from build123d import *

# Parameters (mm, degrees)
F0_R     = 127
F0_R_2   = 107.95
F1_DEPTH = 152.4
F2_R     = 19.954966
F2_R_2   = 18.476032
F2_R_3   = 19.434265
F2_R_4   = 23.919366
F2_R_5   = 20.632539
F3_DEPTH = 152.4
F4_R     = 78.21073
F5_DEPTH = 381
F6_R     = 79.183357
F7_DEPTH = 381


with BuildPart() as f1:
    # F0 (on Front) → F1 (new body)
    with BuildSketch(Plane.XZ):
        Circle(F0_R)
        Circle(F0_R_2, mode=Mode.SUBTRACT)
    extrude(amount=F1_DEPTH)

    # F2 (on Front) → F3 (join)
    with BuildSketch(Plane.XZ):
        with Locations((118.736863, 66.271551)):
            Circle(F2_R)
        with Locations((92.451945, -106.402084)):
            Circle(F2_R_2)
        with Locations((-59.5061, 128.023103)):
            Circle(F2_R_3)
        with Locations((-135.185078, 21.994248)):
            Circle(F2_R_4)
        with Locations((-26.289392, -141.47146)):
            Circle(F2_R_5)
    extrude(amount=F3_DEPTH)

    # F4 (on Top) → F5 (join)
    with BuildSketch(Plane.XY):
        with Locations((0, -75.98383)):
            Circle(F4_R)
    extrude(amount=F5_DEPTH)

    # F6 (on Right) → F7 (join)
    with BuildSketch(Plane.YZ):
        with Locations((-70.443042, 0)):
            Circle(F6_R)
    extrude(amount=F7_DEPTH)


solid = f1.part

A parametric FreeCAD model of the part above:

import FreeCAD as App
import Part
import Sketcher

V = App.Vector
Q = App.Units.Quantity

doc = App.newDocument("Part")
body = doc.addObject("PartDesign::Body", "Body")

sketch1 = doc.addObject("Sketcher::SketchObject", "Sketch")
body.addObject(sketch1)
sketch1.AttachmentSupport = (doc.XZ_Plane, [""])
sketch1.MapMode = "FlatFace"
sketch1.addGeometry(Part.Circle(V(0, 0, 0), V(0, 0, 1), 127), False)
sketch1.addGeometry(Part.Circle(V(0, 0, 0), V(0, 0, 1), 107.95), False)
sketch1.addConstraint(Sketcher.Constraint("Coincident", 0, 3, -1, 1))
sketch1.addConstraint(Sketcher.Constraint("Coincident", 1, 3, -1, 1))
sketch1.addConstraint(Sketcher.Constraint("Diameter", 0, Q("10 in")))
sketch1.addConstraint(Sketcher.Constraint("Diameter", 1, Q("8.5 in")))
pad1 = doc.addObject("PartDesign::Pad", "Pad")
body.addObject(pad1)
pad1.Profile = sketch1
pad1.Length = Q("6 in")

sketch2 = doc.addObject("Sketcher::SketchObject", "Sketch001")
body.addObject(sketch2)
sketch2.AttachmentSupport = (doc.XZ_Plane, [""])
sketch2.MapMode = "FlatFace"
sketch2.addGeometry(Part.Circle(V(118.736863, 66.271551, 0), V(0, 0, 1), 19.954966), False)
sketch2.addGeometry(Part.Circle(V(92.451945, -106.402084, 0), V(0, 0, 1), 18.476032), False)
sketch2.addGeometry(Part.Circle(V(-59.5061, 128.023103, 0), V(0, 0, 1), 19.434265), False)
sketch2.addGeometry(Part.Circle(V(-135.185078, 21.994248, 0), V(0, 0, 1), 23.919366), False)
sketch2.addGeometry(Part.Circle(V(-26.289392, -141.47146, 0), V(0, 0, 1), 20.632539), False)
sketch2.addConstraint(Sketcher.Constraint("Diameter", 0, 39.909932))
sketch2.addConstraint(Sketcher.Constraint("Diameter", 2, 38.86853))
sketch2.addConstraint(Sketcher.Constraint("Diameter", 4, 41.265078))
sketch2.addConstraint(Sketcher.Constraint("Diameter", 1, 36.952064))
sketch2.addConstraint(Sketcher.Constraint("Diameter", 3, 47.838732))
sketch2.addConstraint(Sketcher.Constraint("DistanceX", 2, 3, 1, 3, Q("5.9826002 in")))
sketch2.addConstraint(Sketcher.Constraint("DistanceX", 2, 3, -1, 1, 59.5061))
sketch2.addConstraint(Sketcher.Constraint("DistanceY", -1, 1, 0, 3, 66.271551))
sketch2.addConstraint(Sketcher.Constraint("DistanceX", 3, 3, -1, 1, 135.185078))
sketch2.addConstraint(Sketcher.Constraint("DistanceX", 4, 3, -1, 1, 26.289392))
sketch2.addConstraint(Sketcher.Constraint("DistanceY", 4, 3, -1, 1, 141.47146))
sketch2.addConstraint(Sketcher.Constraint("DistanceX", 1, 3, 0, 3, 26.284918))
sketch2.addConstraint(Sketcher.Constraint("DistanceY", 0, 3, 2, 3, 61.751552))
sketch2.addConstraint(Sketcher.Constraint("DistanceY", 1, 3, 3, 3, 128.396332))
sketch2.addConstraint(Sketcher.Constraint("DistanceY", 4, 3, 3, 3, 163.465708))
pad2 = doc.addObject("PartDesign::Pad", "Pad001")
body.addObject(pad2)
pad2.Profile = sketch2
pad2.Length = Q("6 in")

sketch3 = doc.addObject("Sketcher::SketchObject", "Sketch002")
body.addObject(sketch3)
sketch3.AttachmentSupport = (doc.XY_Plane, [""])
sketch3.MapMode = "FlatFace"
sketch3.addGeometry(Part.Circle(V(0, -75.98383, 0), V(0, 0, 1), 78.21073), False)
sketch3.addConstraint(Sketcher.Constraint("PointOnObject", 0, 3, -2))
sketch3.addConstraint(Sketcher.Constraint("Diameter", 0, 156.42146))
sketch3.addConstraint(Sketcher.Constraint("DistanceY", 0, 3, -1, 1, 75.98383))
pad3 = doc.addObject("PartDesign::Pad", "Pad002")
body.addObject(pad3)
pad3.Profile = sketch3
pad3.Length = Q("15 in")

sketch4 = doc.addObject("Sketcher::SketchObject", "Sketch003")
body.addObject(sketch4)
sketch4.AttachmentSupport = (doc.YZ_Plane, [""])
sketch4.MapMode = "FlatFace"
sketch4.addGeometry(Part.Circle(V(-70.443042, 0, 0), V(0, 0, 1), 79.183357), False)
sketch4.addConstraint(Sketcher.Constraint("PointOnObject", 0, 3, -1))
sketch4.addConstraint(Sketcher.Constraint("Diameter", 0, 158.366714))
sketch4.addConstraint(Sketcher.Constraint("DistanceX", 0, 3, -1, 1, 70.443042))
pad4 = doc.addObject("PartDesign::Pad", "Pad003")
body.addObject(pad4)
pad4.Profile = sketch4
pad4.Length = Q("15 in")

doc.recompute()
